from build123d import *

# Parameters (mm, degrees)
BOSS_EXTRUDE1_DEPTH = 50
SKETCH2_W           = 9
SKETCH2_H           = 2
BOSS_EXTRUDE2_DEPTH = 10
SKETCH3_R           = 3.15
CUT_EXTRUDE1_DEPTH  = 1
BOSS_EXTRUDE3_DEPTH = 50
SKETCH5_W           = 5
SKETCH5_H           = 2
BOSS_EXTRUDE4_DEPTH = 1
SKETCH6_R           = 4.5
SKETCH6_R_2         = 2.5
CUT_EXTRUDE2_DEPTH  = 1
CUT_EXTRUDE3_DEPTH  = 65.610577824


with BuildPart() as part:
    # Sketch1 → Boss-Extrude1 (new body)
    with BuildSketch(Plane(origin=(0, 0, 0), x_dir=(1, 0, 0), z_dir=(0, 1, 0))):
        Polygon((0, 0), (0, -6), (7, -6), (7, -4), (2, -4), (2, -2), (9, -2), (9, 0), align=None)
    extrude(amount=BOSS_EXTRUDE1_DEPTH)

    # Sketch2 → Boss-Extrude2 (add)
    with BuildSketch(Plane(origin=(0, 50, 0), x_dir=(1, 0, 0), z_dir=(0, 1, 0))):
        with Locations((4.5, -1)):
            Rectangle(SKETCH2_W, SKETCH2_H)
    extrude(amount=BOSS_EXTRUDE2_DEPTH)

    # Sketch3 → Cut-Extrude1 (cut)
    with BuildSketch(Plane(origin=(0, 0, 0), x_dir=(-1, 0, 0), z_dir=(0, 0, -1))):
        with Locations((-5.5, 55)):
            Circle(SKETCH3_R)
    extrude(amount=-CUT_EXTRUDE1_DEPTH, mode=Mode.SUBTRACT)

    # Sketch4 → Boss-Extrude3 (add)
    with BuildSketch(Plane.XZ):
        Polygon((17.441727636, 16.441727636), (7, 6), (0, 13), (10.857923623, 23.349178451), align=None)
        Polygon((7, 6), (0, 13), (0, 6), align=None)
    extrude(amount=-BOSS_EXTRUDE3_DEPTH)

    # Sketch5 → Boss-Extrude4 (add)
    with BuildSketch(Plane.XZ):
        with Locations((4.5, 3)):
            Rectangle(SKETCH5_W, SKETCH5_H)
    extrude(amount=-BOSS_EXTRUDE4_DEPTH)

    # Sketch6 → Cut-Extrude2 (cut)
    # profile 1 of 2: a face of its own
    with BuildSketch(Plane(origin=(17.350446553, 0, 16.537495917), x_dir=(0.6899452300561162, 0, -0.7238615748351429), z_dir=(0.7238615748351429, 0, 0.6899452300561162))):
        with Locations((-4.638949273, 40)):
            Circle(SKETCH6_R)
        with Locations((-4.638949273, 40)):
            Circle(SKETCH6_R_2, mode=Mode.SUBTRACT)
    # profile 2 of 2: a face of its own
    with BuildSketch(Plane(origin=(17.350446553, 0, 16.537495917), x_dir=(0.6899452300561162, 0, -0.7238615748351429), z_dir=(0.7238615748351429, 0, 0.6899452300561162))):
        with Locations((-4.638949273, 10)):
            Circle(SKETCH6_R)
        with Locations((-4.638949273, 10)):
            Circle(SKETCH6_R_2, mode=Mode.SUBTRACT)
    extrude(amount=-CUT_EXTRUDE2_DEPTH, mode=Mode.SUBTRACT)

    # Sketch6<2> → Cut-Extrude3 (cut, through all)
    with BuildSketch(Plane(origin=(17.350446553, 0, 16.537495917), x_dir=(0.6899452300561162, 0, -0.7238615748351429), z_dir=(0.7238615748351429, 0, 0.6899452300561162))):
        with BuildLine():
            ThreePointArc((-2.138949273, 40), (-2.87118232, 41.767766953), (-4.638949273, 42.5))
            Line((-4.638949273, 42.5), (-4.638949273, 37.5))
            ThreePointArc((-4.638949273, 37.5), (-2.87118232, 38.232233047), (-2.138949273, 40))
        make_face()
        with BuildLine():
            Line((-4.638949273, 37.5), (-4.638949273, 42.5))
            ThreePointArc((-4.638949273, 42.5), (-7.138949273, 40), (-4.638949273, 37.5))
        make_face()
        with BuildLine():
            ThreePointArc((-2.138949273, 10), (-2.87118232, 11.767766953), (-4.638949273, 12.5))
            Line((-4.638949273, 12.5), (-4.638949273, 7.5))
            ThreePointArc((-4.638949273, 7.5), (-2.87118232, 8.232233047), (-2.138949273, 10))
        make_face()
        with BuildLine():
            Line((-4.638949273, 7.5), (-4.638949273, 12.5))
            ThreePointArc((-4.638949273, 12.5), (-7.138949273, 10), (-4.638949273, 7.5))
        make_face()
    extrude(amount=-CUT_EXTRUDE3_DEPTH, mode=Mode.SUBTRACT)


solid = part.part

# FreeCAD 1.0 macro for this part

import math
import FreeCAD as App
import Part
import Sketcher
from FreeCAD import Vector
Q = App.Units.Quantity


def add_polygon(sketch, points):
    """Adds a closed chain of lines whose ends are joined by coincident constraints."""
    first, n = sketch.GeometryCount, len(points)
    for a, b in zip(points, points[1:] + points[:1]):
        sketch.addGeometry(Part.LineSegment(App.Vector(*a, 0), App.Vector(*b, 0)), False)
    for i in range(n):
        sketch.addConstraint(Sketcher.Constraint("Coincident", first + i, 2, first + (i + 1) % n, 1))

doc = App.newDocument("Part")
body = doc.addObject("PartDesign::Body", "Body")

# Sketch on XZ plane
sketch1 = body.newObject("Sketcher::SketchObject", "Sketch")
sketch1.AttachmentSupport = (doc.getObject("XZ_Plane"), [""])
sketch1.MapMode = "FlatFace"
add_polygon(sketch1, [(0, 0), (0, 6), (7, 6), (7, 4), (2, 4), (2, 2), (9, 2), (9, 0)])  # lines 0-7
sketch1.addConstraint(Sketcher.Constraint("Vertical", 0))
sketch1.addConstraint(Sketcher.Constraint("Horizontal", 1))
sketch1.addConstraint(Sketcher.Constraint("Vertical", 2))
sketch1.addConstraint(Sketcher.Constraint("Horizontal", 3))
sketch1.addConstraint(Sketcher.Constraint("Vertical", 4))
sketch1.addConstraint(Sketcher.Constraint("Horizontal", 5))
sketch1.addConstraint(Sketcher.Constraint("Vertical", 6))
sketch1.addConstraint(Sketcher.Constraint("Horizontal", 7))
sketch1.addConstraint(Sketcher.Constraint("Coincident", 7, 2, -1, 1))
sketch1.addConstraint(Sketcher.Constraint("Equal", 1, 5))
sketch1.addConstraint(Sketcher.Constraint("Equal", 2, 4))
sketch1.addConstraint(Sketcher.Constraint("Equal", 4, 6))
sketch1.addConstraint(Sketcher.Constraint("DistanceX", 1, 1, 1, 2, Q("7 mm")))
sketch1.addConstraint(Sketcher.Constraint("DistanceX", 3, 2, 3, 1, Q("5 mm")))
sketch1.addConstraint(Sketcher.Constraint("DistanceY", 0, 1, 0, 2, Q("6 mm")))
pad1 = body.newObject("PartDesign::Pad", "Pad")
pad1.Profile = sketch1
pad1.Length = 50
pad1.Reversed = True

# Sketch on XZ plane
sketch2 = body.newObject("Sketcher::SketchObject", "Sketch001")
sketch2.AttachmentSupport = (doc.getObject("XZ_Plane"), [""])
sketch2.MapMode = "FlatFace"
sketch2.AttachmentOffset = App.Placement(Vector(0, 0, -50), App.Rotation())
add_polygon(sketch2, [(0, 0), (0, 2), (9, 2), (9, 0)])  # lines 0-3
sketch2.addConstraint(Sketcher.Constraint("Vertical", 0))
sketch2.addConstraint(Sketcher.Constraint("Horizontal", 1))
sketch2.addConstraint(Sketcher.Constraint("Vertical", 2))
sketch2.addConstraint(Sketcher.Constraint("Horizontal", 3))
sketch2.addConstraint(Sketcher.Constraint("Coincident", 3, 2, -1, 1))
sketch2.addConstraint(Sketcher.Constraint("DistanceX", 1, 1, 1, 2, Q("9 mm")))
sketch2.addConstraint(Sketcher.Constraint("DistanceY", 0, 1, 0, 2, Q("2 mm")))
pad2 = body.newObject("PartDesign::Pad", "Pad001")
pad2.Profile = sketch2
pad2.Length = 10
pad2.Reversed = True

# Sketch on XY plane
sketch3 = body.newObject("Sketcher::SketchObject", "Sketch002")
sketch3.AttachmentSupport = (doc.getObject("XY_Plane"), [""])
sketch3.MapMode = "FlatFace"
sketch3.addGeometry(Part.Circle(Vector(5.5, 55, 0), Vector(0, 0, 1), 3.1), False)
sketch3.addConstraint(Sketcher.Constraint("Diameter", 0, Q("6.3 mm")))
sketch3.addConstraint(Sketcher.Constraint("DistanceY", -1, 1, 0, 3, Q("55 mm")))
sketch3.addConstraint(Sketcher.Constraint("DistanceX", -1, 1, 0, 3, Q("5.5 mm")))
pocket1 = body.newObject("PartDesign::Pocket", "Pocket")
pocket1.Profile = sketch3
pocket1.Length = 1
pocket1.Reversed = True

# Sketch on XZ plane
sketch4 = body.newObject("Sketcher::SketchObject", "Sketch003")
sketch4.AttachmentSupport = (doc.getObject("XZ_Plane"), [""])
sketch4.MapMode = "FlatFace"
add_polygon(sketch4, [(7, 6), (17, 16), (11, 23), (0, 13), (0, 6)])  # lines 0-4
sketch4.addConstraint(Sketcher.Constraint("Vertical", 3))
sketch4.addConstraint(Sketcher.Constraint("Horizontal", 4))
sketch4.addConstraint(Sketcher.Constraint("PointOnObject", 2, 2, -2))
sketch4.addConstraint(Sketcher.Constraint("Perpendicular", 1, 2))
sketch4.addConstraint(Sketcher.Constraint("Equal", 4, 3))
sketch4.addConstraint(Sketcher.Constraint("DistanceX", 4, 1, 4, 2, Q("7 mm")))
sketch4.addConstraint(Sketcher.Constraint("Angle", 0, Q("45 deg")))
sketch4.addConstraint(Sketcher.Constraint("Distance", 2, Q("15 mm")))
sketch4.addConstraint(Sketcher.Constraint("DistanceY", -1, 1, 2, 2, Q("13 mm")))
sketch4.addConstraint(Sketcher.Constraint("DistanceY", -1, 1, 1, 2, Q("23.349178 mm")))
pad3 = body.newObject("PartDesign::Pad", "Pad002")
pad3.Profile = sketch4
pad3.Length = 50
pad3.Reversed = True

# Sketch on XZ plane
sketch5 = body.newObject("Sketcher::SketchObject", "Sketch004")
sketch5.AttachmentSupport = (doc.getObject("XZ_Plane"), [""])
sketch5.MapMode = "FlatFace"
add_polygon(sketch5, [(2, 4), (2, 2), (7, 2), (7, 4)])  # lines 0-3
sketch5.addConstraint(Sketcher.Constraint("Vertical", 0))
sketch5.addConstraint(Sketcher.Constraint("Horizontal", 1))
sketch5.addConstraint(Sketcher.Constraint("Vertical", 2))
sketch5.addConstraint(Sketcher.Constraint("Horizontal", 3))
sketch5.addConstraint(Sketcher.Constraint("DistanceX", 1, 1, 1, 2, Q("5 mm")))
sketch5.addConstraint(Sketcher.Constraint("DistanceY", 0, 2, 0, 1, Q("2 mm")))
sketch5.addConstraint(Sketcher.Constraint("DistanceX", -1, 1, 0, 2, Q("2 mm")))
sketch5.addConstraint(Sketcher.Constraint("DistanceY", -1, 1, 0, 2, Q("2 mm")))
pad4 = body.newObject("PartDesign::Pad", "Pad003")
pad4.Profile = sketch5
pad4.Length = 1
pad4.Reversed = True

# Sketch on an angled plane
sketch6 = body.newObject("Sketcher::SketchObject", "Sketch005")
sketch6.Placement = App.Placement(Vector(17.350447, 0, 16.537496), App.Rotation(Vector(0.68994523, 0, -0.723861575), Vector(0, 1, 0), Vector(0.723861575, 0, 0.68994523), "ZXY"))
sketch6.addGeometry(Part.Circle(Vector(-4.6, 40, 0), Vector(0, 0, 1), 4.5), False)
sketch6.addGeometry(Part.Circle(Vector(-4.6, 40, 0), Vector(0, 0, 1), 2.5), False)
sketch6.addGeometry(Part.Circle(Vector(-4.6, 10, 0), Vector(0, 0, 1), 4.5), False)
sketch6.addGeometry(Part.Circle(Vector(-4.6, 10, 0), Vector(0, 0, 1), 2.5), False)
sketch6.addConstraint(Sketcher.Constraint("Coincident", 1, 3, 0, 3))
sketch6.addConstraint(Sketcher.Constraint("Coincident", 3, 3, 2, 3))
sketch6.addConstraint(Sketcher.Constraint("Equal", 0, 2))
sketch6.addConstraint(Sketcher.Constraint("Equal", 1, 3))
sketch6.addConstraint(Sketcher.Constraint("Vertical", 1, 3, 2, 3))
sketch6.addConstraint(Sketcher.Constraint("Diameter", 0, Q("9 mm")))
sketch6.addConstraint(Sketcher.Constraint("Diameter", 1, Q("5 mm")))
sketch6.addConstraint(Sketcher.Constraint("DistanceY", -1, 1, 0, 3, Q("40 mm")))
sketch6.addConstraint(Sketcher.Constraint("DistanceY", -1, 1, 2, 3, Q("10 mm")))
sketch6.addConstraint(Sketcher.Constraint("DistanceX", 0, 3, -1, 1, Q("4.638949 mm")))
pocket2 = body.newObject("PartDesign::Pocket", "Pocket001")
pocket2.Profile = sketch6
pocket2.Length = 1

# Sketch on an angled plane
sketch7 = body.newObject("Sketcher::SketchObject", "Sketch006")
sketch7.Placement = App.Placement(Vector(17.350447, 0, 16.537496), App.Rotation(Vector(0.68994523, 0, -0.723861575), Vector(0, 1, 0), Vector(0.723861575, 0, 0.68994523), "ZXY"))
sketch7.addGeometry(Part.ArcOfCircle(Part.Circle(Vector(-4.6, 40, 0), Vector(0, 0, 1), 2.5), math.radians(0), math.radians(90)), False)
sketch7.addGeometry(Part.ArcOfCircle(Part.Circle(Vector(-4.6, 40, 0), Vector(0, 0, 1), 2.5), math.radians(90), math.radians(270)), False)
sketch7.addGeometry(Part.ArcOfCircle(Part.Circle(Vector(-4.6, 40, 0), Vector(0, 0, 1), 2.5), math.radians(-90), math.radians(0)), False)
sketch7.addGeometry(Part.ArcOfCircle(Part.Circle(Vector(-4.6, 10, 0), Vector(0, 0, 1), 2.5), math.radians(0), math.radians(90)), False)
sketch7.addGeometry(Part.ArcOfCircle(Part.Circle(Vector(-4.6, 10, 0), Vector(0, 0, 1), 2.5), math.radians(90), math.radians(270)), False)
sketch7.addGeometry(Part.ArcOfCircle(Part.Circle(Vector(-4.6, 10, 0), Vector(0, 0, 1), 2.5), math.radians(-90), math.radians(0)), False)
sketch7.addConstraint(Sketcher.Constraint("Tangent", 0, 2, 1, 1))
sketch7.addConstraint(Sketcher.Constraint("Tangent", 1, 2, 2, 1))
sketch7.addConstraint(Sketcher.Constraint("Tangent", 2, 2, 0, 1))
sketch7.addConstraint(Sketcher.Constraint("Tangent", 3, 2, 4, 1))
sketch7.addConstraint(Sketcher.Constraint("Tangent", 4, 2, 5, 1))
sketch7.addConstraint(Sketcher.Constraint("Tangent", 5, 2, 3, 1))
sketch7.addConstraint(Sketcher.Constraint("Equal", 2, 3))
sketch7.addConstraint(Sketcher.Constraint("Horizontal", 1, 3, 2, 2))
sketch7.addConstraint(Sketcher.Constraint("Horizontal", 4, 3, 5, 2))
sketch7.addConstraint(Sketcher.Constraint("Vertical", 2, 3, 3, 3))
sketch7.addConstraint(Sketcher.Constraint("Vertical", 5, 3, 0, 2))
sketch7.addConstraint(Sketcher.Constraint("Vertical", 0, 2, 1, 2))
sketch7.addConstraint(Sketcher.Constraint("Vertical", 1, 2, 3, 2))
sketch7.addConstraint(Sketcher.Constraint("Vertical", 3, 2, 4, 2))
sketch7.addConstraint(Sketcher.Constraint("Radius", 0, Q("2.5 mm")))
sketch7.addConstraint(Sketcher.Constraint("DistanceY", -1, 1, 0, 3, Q("40 mm")))
sketch7.addConstraint(Sketcher.Constraint("DistanceY", -1, 1, 3, 3, Q("10 mm")))
sketch7.addConstraint(Sketcher.Constraint("DistanceX", 0, 3, -1, 1, Q("4.638949 mm")))
pocket3 = body.newObject("PartDesign::Pocket", "Pocket002")
pocket3.Profile = sketch7
pocket3.Type = "ThroughAll"

doc.recompute()
